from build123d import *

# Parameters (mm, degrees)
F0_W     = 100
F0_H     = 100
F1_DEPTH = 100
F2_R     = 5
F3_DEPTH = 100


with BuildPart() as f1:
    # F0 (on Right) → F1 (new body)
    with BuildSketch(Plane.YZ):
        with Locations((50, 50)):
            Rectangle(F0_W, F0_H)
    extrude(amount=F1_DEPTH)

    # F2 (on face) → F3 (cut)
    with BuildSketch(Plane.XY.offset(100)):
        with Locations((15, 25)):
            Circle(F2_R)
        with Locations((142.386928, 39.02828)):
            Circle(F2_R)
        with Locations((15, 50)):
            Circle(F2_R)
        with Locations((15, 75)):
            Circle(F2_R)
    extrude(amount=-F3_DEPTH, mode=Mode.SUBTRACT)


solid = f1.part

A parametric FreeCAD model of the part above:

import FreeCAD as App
import Part
import Sketcher
Q = App.Units.Quantity


def add_polygon(sketch, points):
    """Adds a closed chain of lines whose ends are joined by coincident constraints."""
    first, n = sketch.GeometryCount, len(points)
    for a, b in zip(points, points[1:] + points[:1]):
        sketch.addGeometry(Part.LineSegment(App.Vector(*a, 0), App.Vector(*b, 0)), False)
    for i in range(n):
        sketch.addConstraint(Sketcher.Constraint("Coincident", first + i, 2, first + (i + 1) % n, 1))

doc = App.newDocument("Part")
body = doc.addObject("PartDesign::Body", "Body")

sketch1 = doc.addObject("Sketcher::SketchObject", "Sketch")
body.addObject(sketch1)
sketch1.AttachmentSupport = (doc.YZ_Plane, [""])
sketch1.MapMode = "FlatFace"
add_polygon(sketch1, [(0, 100), (0, 0), (100, 0), (100, 100)])
sketch1.addConstraint(Sketcher.Constraint("Vertical", 0))
sketch1.addConstraint(Sketcher.Constraint("Horizontal", 1))
sketch1.addConstraint(Sketcher.Constraint("Vertical", 2))
sketch1.addConstraint(Sketcher.Constraint("Horizontal", 3))
sketch1.addConstraint(Sketcher.Constraint("Coincident", 0, 2, -1, 1))
sketch1.addConstraint(Sketcher.Constraint("Equal", 3, 0))
sketch1.addConstraint(Sketcher.Constraint("DistanceX", 1, 1, 1, 2, Q("100 mm")))
pad1 = doc.addObject("PartDesign::Pad", "Pad")
body.addObject(pad1)
pad1.Profile = sketch1
pad1.Length = 100

sketch2 = doc.addObject("Sketcher::SketchObject", "Sketch001")
body.addObject(sketch2)
sketch2.AttachmentSupport = (doc.XY_Plane, [""])
sketch2.MapMode = "FlatFace"
sketch2.AttachmentOffset = App.Placement(App.Vector(0, 0, 100), App.Rotation())
sketch2.addGeometry(Part.Circle(App.Vector(15, 25, 0), App.Vector(0, 0, 1), 5), False)
sketch2.addGeometry(Part.Circle(App.Vector(142, 39, 0), App.Vector(0, 0, 1), 5), False)
sketch2.addGeometry(Part.Circle(App.Vector(15, 50, 0), App.Vector(0, 0, 1), 5), False)
sketch2.addGeometry(Part.Circle(App.Vector(15, 75, 0), App.Vector(0, 0, 1), 5), False)
sketch2.addConstraint(Sketcher.Constraint("Equal", 0, 1))
sketch2.addConstraint(Sketcher.Constraint("Equal", 1, 2))
sketch2.addConstraint(Sketcher.Constraint("Equal", 2, 3))
sketch2.addConstraint(Sketcher.Constraint("Vertical", 0, 3, 2, 3))
sketch2.addConstraint(Sketcher.Constraint("Vertical", 2, 3, 3, 3))
sketch2.addConstraint(Sketcher.Constraint("Diameter", 0, Q("10 mm")))
sketch2.addConstraint(Sketcher.Constraint("DistanceX", -1, 1, 0, 3, Q("15 mm")))
sketch2.addConstraint(Sketcher.Constraint("DistanceY", -1, 1, 0, 3, Q("25 mm")))
sketch2.addConstraint(Sketcher.Constraint("DistanceY", -1, 1, 2, 3, Q("50 mm")))
sketch2.addConstraint(Sketcher.Constraint("DistanceY", -1, 1, 3, 3, Q("75 mm")))
sketch2.addConstraint(Sketcher.Constraint("DistanceX", -1, 1, 1, 3, Q("142.386928 mm")))
sketch2.addConstraint(Sketcher.Constraint("DistanceY", -1, 1, 1, 3, Q("39.02828 mm")))
pocket1 = doc.addObject("PartDesign::Pocket", "Pocket")
body.addObject(pocket1)
pocket1.Profile = sketch2
pocket1.Length = 100

doc.recompute()
